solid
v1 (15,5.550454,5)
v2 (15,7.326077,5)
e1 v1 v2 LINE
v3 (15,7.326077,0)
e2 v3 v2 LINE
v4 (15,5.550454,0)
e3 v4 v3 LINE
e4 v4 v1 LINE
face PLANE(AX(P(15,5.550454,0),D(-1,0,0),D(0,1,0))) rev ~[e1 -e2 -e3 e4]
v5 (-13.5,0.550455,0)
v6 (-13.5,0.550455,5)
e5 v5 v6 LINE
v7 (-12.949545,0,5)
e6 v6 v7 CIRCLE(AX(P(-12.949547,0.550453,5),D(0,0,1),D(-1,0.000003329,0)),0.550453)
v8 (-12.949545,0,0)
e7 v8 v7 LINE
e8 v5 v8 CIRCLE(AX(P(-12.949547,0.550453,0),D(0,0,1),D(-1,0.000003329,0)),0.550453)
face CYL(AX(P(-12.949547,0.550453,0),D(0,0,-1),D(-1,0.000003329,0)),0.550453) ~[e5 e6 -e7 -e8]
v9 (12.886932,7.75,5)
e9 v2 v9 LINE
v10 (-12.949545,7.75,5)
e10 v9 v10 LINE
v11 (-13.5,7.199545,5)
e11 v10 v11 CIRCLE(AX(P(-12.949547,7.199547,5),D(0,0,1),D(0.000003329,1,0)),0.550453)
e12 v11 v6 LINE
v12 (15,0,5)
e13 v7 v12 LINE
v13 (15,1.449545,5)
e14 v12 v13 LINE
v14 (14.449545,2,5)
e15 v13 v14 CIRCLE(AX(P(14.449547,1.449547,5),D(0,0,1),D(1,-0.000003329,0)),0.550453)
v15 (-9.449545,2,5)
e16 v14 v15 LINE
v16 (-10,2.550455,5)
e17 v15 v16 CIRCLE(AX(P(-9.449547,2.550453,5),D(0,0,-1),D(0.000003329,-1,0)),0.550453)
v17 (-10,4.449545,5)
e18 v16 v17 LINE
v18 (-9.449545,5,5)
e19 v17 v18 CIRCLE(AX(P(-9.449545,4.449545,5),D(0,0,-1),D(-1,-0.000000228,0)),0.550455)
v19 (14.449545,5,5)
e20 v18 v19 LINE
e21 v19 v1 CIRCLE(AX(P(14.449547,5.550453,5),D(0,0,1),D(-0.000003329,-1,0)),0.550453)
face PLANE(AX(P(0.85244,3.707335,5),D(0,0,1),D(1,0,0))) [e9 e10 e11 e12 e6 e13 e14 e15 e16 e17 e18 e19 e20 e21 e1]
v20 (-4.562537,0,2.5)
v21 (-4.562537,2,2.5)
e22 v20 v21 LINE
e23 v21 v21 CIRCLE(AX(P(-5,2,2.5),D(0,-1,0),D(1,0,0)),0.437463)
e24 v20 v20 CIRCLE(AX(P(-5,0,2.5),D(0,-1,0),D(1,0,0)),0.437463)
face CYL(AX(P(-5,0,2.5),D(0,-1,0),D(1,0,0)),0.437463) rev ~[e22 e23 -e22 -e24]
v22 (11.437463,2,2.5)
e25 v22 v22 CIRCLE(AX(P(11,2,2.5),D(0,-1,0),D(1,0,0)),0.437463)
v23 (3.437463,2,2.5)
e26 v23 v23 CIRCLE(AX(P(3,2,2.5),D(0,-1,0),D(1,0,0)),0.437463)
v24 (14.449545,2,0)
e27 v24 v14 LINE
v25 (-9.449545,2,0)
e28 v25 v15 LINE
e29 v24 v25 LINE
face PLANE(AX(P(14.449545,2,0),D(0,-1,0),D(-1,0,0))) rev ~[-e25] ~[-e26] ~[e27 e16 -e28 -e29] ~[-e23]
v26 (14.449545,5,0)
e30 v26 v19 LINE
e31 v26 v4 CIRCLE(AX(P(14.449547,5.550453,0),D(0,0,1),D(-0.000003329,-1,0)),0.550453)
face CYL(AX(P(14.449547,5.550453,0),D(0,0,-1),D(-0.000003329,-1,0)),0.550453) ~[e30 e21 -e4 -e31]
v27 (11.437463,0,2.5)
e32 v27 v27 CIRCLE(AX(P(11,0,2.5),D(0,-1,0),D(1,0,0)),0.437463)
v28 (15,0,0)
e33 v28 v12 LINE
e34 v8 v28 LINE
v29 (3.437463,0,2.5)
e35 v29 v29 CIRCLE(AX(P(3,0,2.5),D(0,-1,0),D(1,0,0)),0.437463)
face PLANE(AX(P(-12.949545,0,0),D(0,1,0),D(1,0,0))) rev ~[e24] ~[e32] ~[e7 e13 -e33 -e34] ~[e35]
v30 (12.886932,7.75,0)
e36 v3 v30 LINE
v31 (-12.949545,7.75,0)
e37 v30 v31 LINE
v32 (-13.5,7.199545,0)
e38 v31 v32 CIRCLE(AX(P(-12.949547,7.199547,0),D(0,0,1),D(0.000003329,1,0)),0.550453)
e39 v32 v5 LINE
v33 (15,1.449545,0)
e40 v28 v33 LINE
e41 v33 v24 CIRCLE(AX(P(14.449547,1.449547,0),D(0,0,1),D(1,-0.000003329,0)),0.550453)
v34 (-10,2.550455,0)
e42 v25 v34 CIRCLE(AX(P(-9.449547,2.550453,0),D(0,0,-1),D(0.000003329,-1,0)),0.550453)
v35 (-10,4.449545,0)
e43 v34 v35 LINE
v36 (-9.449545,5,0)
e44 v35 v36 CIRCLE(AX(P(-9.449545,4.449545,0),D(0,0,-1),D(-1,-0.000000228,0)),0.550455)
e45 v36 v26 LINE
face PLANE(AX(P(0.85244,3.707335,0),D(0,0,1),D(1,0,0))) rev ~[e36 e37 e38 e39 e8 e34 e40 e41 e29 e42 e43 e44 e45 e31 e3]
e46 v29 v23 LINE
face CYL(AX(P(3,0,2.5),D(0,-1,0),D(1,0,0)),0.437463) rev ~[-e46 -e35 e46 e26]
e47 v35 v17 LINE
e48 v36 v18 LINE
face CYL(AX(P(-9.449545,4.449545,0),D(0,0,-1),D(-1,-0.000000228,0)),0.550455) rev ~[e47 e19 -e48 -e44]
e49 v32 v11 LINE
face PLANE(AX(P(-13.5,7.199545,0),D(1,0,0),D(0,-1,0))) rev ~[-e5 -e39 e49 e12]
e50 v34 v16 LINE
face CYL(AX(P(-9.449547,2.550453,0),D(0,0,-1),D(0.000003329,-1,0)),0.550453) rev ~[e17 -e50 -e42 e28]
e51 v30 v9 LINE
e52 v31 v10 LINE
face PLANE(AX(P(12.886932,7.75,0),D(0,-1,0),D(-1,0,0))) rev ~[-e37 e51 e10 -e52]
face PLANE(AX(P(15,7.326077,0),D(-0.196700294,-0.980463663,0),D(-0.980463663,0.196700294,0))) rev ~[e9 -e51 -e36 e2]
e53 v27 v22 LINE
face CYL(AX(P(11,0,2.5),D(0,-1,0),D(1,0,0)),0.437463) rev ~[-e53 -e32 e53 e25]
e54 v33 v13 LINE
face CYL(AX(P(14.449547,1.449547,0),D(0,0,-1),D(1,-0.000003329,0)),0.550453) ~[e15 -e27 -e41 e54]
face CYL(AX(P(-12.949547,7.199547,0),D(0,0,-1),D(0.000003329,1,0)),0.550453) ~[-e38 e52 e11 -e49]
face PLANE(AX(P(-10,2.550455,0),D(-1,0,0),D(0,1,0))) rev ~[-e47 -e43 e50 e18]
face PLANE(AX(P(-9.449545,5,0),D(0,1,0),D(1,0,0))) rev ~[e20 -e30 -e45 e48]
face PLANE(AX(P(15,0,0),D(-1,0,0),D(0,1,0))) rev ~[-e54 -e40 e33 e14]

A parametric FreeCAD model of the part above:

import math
import FreeCAD as App
import Part
import Sketcher

V = App.Vector

doc = App.newDocument("Part")
body = doc.addObject("PartDesign::Body", "Body")

# Sketch on XY plane
sketch1 = body.newObject("Sketcher::SketchObject", "Sketch")
sketch1.AttachmentSupport = (doc.getObject("XY_Plane"), [""])
sketch1.MapMode = "FlatFace"
sketch1.addGeometry(Part.LineSegment(V(12.9, 7.8, 0), V(-12.9, 7.8, 0)), False)
sketch1.addGeometry(Part.ArcOfCircle(Part.Circle(V(-12.9, 7.2, 0), V(0, 0, 1), 0.6), math.radians(90), math.radians(180)), False)
sketch1.addGeometry(Part.LineSegment(V(-13.5, 7.2, 0), V(-13.5, 0.6, 0)), False)
sketch1.addGeometry(Part.ArcOfCircle(Part.Circle(V(-12.9, 0.6, 0), V(0, 0, 1), 0.6), math.radians(180), math.radians(270)), False)
sketch1.addGeometry(Part.LineSegment(V(-12.9, 0, 0), V(15, 0, 0)), False)
sketch1.addGeometry(Part.LineSegment(V(15, 0, 0), V(15, 1.4, 0)), False)
sketch1.addGeometry(Part.ArcOfCircle(Part.Circle(V(14.4, 1.4, 0), V(0, 0, 1), 0.6), math.radians(0), math.radians(90)), False)
sketch1.addGeometry(Part.LineSegment(V(14.4, 2, 0), V(-9.4, 2, 0)), False)
sketch1.addGeometry(Part.ArcOfCircle(Part.Circle(V(-9.4, 2.6, 0), V(0, 0, 1), 0.6), math.radians(180), math.radians(270)), False)
sketch1.addGeometry(Part.LineSegment(V(-10, 2.6, 0), V(-10, 4.4, 0)), False)
sketch1.addGeometry(Part.ArcOfCircle(Part.Circle(V(-9.4, 4.4, 0), V(0, 0, 1), 0.6), math.radians(90), math.radians(180)), False)
sketch1.addGeometry(Part.LineSegment(V(-9.4, 5, 0), V(14.4, 5, 0)), False)
sketch1.addGeometry(Part.ArcOfCircle(Part.Circle(V(14.4, 5.6, 0), V(0, 0, 1), 0.6), math.radians(-90), math.radians(0)), False)
sketch1.addGeometry(Part.LineSegment(V(15, 5.6, 0), V(15, 7.3, 0)), False)
sketch1.addGeometry(Part.LineSegment(V(15, 7.3, 0), V(12.9, 7.8, 0)), False)
sketch1.addConstraint(Sketcher.Constraint("Coincident", 0, 2, 1, 1))
sketch1.addConstraint(Sketcher.Constraint("Coincident", 1, 2, 2, 1))
sketch1.addConstraint(Sketcher.Constraint("Coincident", 2, 2, 3, 1))
sketch1.addConstraint(Sketcher.Constraint("Coincident", 3, 2, 4, 1))
sketch1.addConstraint(Sketcher.Constraint("Coincident", 4, 2, 5, 1))
sketch1.addConstraint(Sketcher.Constraint("Coincident", 5, 2, 6, 1))
sketch1.addConstraint(Sketcher.Constraint("Coincident", 6, 2, 7, 1))
sketch1.addConstraint(Sketcher.Constraint("Coincident", 7, 2, 8, 2))
sketch1.addConstraint(Sketcher.Constraint("Coincident", 8, 1, 9, 1))
sketch1.addConstraint(Sketcher.Constraint("Tangent", 9, 2, 10, 2))
sketch1.addConstraint(Sketcher.Constraint("Tangent", 10, 1, 11, 1))
sketch1.addConstraint(Sketcher.Constraint("Coincident", 11, 2, 12, 1))
sketch1.addConstraint(Sketcher.Constraint("Tangent", 12, 2, 13, 1))
sketch1.addConstraint(Sketcher.Constraint("Coincident", 13, 2, 14, 1))
sketch1.addConstraint(Sketcher.Constraint("Coincident", 14, 2, 0, 1))
sketch1.addConstraint(Sketcher.Constraint("Horizontal", 0))
sketch1.addConstraint(Sketcher.Constraint("Vertical", 2))
sketch1.addConstraint(Sketcher.Constraint("Horizontal", 4))
sketch1.addConstraint(Sketcher.Constraint("Vertical", 5))
sketch1.addConstraint(Sketcher.Constraint("Horizontal", 7))
sketch1.addConstraint(Sketcher.Constraint("Vertical", 9))
sketch1.addConstraint(Sketcher.Constraint("Horizontal", 11))
sketch1.addConstraint(Sketcher.Constraint("Vertical", 13))
sketch1.addConstraint(Sketcher.Constraint("Equal", 1, 3))
sketch1.addConstraint(Sketcher.Constraint("Equal", 3, 6))
sketch1.addConstraint(Sketcher.Constraint("Equal", 6, 8))
sketch1.addConstraint(Sketcher.Constraint("Equal", 8, 10))
sketch1.addConstraint(Sketcher.Constraint("Equal", 10, 12))
sketch1.addConstraint(Sketcher.Constraint("PointOnObject", 3, 2, -1))
sketch1.addConstraint(Sketcher.Constraint("Horizontal", 3, 3, 2, 2))
sketch1.addConstraint(Sketcher.Constraint("Horizontal", 6, 3, 5, 2))
sketch1.addConstraint(Sketcher.Constraint("Vertical", 6, 3, 12, 3))
sketch1.addConstraint(Sketcher.Constraint("Vertical", 3, 3, 0, 2))
sketch1.addConstraint(Sketcher.Constraint("Vertical", 0, 2, 3, 2))
sketch1.addConstraint(Sketcher.Constraint("Vertical", 12, 3, 6, 2))
sketch1.addConstraint(Sketcher.Constraint("Vertical", 10, 3, 7, 2))
sketch1.addConstraint(Sketcher.Constraint("Vertical", 6, 2, 11, 2))
sketch1.addConstraint(Sketcher.Constraint("DistanceX", -1, 1, 4, 2, 15.0))
sketch1.addConstraint(Sketcher.Constraint("DistanceY", -1, 1, 6, 2, 2.0))
sketch1.addConstraint(Sketcher.Constraint("DistanceX", 8, 1, -1, 1, 10.0))
sketch1.addConstraint(Sketcher.Constraint("DistanceY", -1, 1, 10, 1, 5.0))
sketch1.addConstraint(Sketcher.Constraint("DistanceY", 3, 3, 8, 1, 2.000002))
sketch1.addConstraint(Sketcher.Constraint("DistanceX", 1, 2, -1, 1, 13.5))
sketch1.addConstraint(Sketcher.Constraint("DistanceY", -1, 1, 0, 2, 7.75))
sketch1.addConstraint(Sketcher.Constraint("DistanceY", 10, 3, 1, 2, 2.75))
sketch1.addConstraint(Sketcher.Constraint("Radius", 1, 0.550453))
sketch1.addConstraint(Sketcher.Constraint("DistanceX", 0, 2, 0, 1, 25.836477))
sketch1.addConstraint(Sketcher.Constraint("DistanceY", 13, 1, 13, 2, 1.775623))
pad1 = body.newObject("PartDesign::Pad", "Pad")
pad1.Profile = sketch1
pad1.Length = 5

# Sketch on XZ plane
sketch2 = body.newObject("Sketcher::SketchObject", "Sketch001")
sketch2.AttachmentSupport = (doc.getObject("XZ_Plane"), [""])
sketch2.MapMode = "FlatFace"
sketch2.addGeometry(Part.Circle(V(11, 2.5, 0), V(0, 0, 1), 0.44), False)
sketch2.addGeometry(Part.Circle(V(3, 2.5, 0), V(0, 0, 1), 0.44), False)
sketch2.addGeometry(Part.Circle(V(-5, 2.5, 0), V(0, 0, 1), 0.44), False)
sketch2.addConstraint(Sketcher.Constraint("Equal", 0, 1))
sketch2.addConstraint(Sketcher.Constraint("Equal", 1, 2))
sketch2.addConstraint(Sketcher.Constraint("Horizontal", 0, 3, 1, 3))
sketch2.addConstraint(Sketcher.Constraint("Horizontal", 1, 3, 2, 3))
sketch2.addConstraint(Sketcher.Constraint("DistanceX", -1, 1, 0, 3, 11.0))
sketch2.addConstraint(Sketcher.Constraint("DistanceX", -1, 1, 1, 3, 3.0))
sketch2.addConstraint(Sketcher.Constraint("DistanceX", 2, 3, -1, 1, 5.0))
sketch2.addConstraint(Sketcher.Constraint("DistanceY", -1, 1, 0, 3, 2.5))
sketch2.addConstraint(Sketcher.Constraint("Diameter", 0, 0.874926))
pocket1 = body.newObject("PartDesign::Pocket", "Pocket")
pocket1.Profile = sketch2
pocket1.Length = 4

doc.recompute()
